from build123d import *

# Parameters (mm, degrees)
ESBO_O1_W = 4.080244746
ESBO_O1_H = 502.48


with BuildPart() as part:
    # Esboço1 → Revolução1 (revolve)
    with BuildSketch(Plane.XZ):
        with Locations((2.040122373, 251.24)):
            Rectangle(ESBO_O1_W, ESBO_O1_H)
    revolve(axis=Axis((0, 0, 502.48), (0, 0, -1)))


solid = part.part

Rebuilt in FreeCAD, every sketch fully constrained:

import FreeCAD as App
import Part
import Sketcher

V = App.Vector

doc = App.newDocument("Part")
body = doc.addObject("PartDesign::Body", "Body")

sketch1 = doc.addObject("Sketcher::SketchObject", "Sketch")
body.addObject(sketch1)
sketch1.AttachmentSupport = (doc.XZ_Plane, [""])
sketch1.MapMode = "FlatFace"
sketch1.addGeometry([
    Part.LineSegment(V(0, 502.48, 0), V(0, 0, 0)),
    Part.LineSegment(V(0, 0, 0), V(4.080245, 0, 0)),
    Part.LineSegment(V(4.080245, 0, 0), V(4.080245, 502.48, 0)),
    Part.LineSegment(V(4.080245, 502.48, 0), V(0, 502.48, 0)),
], False)
sketch1.addConstraint([
    Sketcher.Constraint("Coincident", 0, 2, 1, 1),
    Sketcher.Constraint("Coincident", 1, 2, 2, 1),
    Sketcher.Constraint("Coincident", 2, 2, 3, 1),
    Sketcher.Constraint("Coincident", 3, 2, 0, 1),
    Sketcher.Constraint("Vertical", 0),
    Sketcher.Constraint("Horizontal", 1),
    Sketcher.Constraint("Vertical", 2),
    Sketcher.Constraint("Horizontal", 3),
    Sketcher.Constraint("Coincident", 0, 2, -1, 1),
    Sketcher.Constraint("DistanceY", 0, 2, 0, 1, 502.48),
    Sketcher.Constraint("DistanceX", 1, 1, 1, 2, 4.080245),
])
revolution = doc.addObject("PartDesign::Revolution", "Revolution")
body.addObject(revolution)
revolution.Profile = sketch1
revolution.ReferenceAxis = (sketch1, ["V_Axis"])
revolution.Angle = 360

doc.recompute()
